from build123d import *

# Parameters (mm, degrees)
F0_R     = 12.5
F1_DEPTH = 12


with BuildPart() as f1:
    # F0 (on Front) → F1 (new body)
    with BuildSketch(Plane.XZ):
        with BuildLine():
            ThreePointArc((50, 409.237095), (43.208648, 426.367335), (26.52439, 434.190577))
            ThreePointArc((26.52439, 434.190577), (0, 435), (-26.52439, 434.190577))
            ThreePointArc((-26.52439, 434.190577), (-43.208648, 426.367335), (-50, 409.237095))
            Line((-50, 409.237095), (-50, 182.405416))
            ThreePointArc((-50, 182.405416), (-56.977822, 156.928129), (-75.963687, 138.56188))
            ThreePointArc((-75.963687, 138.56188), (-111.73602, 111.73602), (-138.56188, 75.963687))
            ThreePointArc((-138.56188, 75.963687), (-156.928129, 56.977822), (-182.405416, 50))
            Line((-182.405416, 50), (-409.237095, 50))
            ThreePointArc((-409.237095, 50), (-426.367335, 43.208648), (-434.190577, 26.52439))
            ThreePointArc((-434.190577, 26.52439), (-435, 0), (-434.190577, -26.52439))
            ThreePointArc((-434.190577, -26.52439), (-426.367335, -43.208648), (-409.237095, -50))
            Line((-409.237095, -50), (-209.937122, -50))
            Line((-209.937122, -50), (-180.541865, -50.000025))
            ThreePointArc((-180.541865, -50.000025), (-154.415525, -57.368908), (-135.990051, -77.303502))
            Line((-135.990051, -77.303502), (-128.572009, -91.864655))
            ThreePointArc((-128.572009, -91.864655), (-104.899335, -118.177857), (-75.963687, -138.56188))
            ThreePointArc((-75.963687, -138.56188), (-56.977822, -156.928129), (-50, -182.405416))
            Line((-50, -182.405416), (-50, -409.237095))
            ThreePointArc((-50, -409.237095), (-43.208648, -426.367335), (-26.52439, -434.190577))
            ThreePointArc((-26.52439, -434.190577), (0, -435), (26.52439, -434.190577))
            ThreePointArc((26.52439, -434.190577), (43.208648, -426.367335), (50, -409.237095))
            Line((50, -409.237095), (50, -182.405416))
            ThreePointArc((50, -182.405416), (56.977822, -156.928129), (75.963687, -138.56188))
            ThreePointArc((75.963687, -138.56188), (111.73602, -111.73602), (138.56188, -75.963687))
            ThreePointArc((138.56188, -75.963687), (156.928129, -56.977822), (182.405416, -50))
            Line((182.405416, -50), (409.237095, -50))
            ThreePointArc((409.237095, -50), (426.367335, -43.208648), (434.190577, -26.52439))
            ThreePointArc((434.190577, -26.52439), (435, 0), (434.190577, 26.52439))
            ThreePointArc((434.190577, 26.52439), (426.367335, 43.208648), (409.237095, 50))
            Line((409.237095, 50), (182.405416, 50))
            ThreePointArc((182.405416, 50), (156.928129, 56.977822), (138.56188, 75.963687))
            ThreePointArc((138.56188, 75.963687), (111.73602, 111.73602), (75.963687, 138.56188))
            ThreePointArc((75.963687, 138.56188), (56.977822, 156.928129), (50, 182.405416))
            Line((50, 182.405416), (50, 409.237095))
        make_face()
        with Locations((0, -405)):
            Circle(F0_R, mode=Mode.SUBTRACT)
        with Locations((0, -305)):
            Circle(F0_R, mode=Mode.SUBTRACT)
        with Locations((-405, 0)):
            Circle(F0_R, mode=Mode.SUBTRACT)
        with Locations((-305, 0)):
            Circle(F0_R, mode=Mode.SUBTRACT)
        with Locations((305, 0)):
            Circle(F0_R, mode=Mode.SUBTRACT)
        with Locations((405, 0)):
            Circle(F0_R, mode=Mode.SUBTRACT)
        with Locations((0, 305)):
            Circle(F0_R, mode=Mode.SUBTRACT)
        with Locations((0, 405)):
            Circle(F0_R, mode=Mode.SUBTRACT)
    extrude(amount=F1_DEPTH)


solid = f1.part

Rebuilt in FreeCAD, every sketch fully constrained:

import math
import FreeCAD as App
import Part
import Sketcher
Q = App.Units.Quantity

doc = App.newDocument("Part")
body = doc.addObject("PartDesign::Body", "Body")

# Sketch on XZ plane
sketch1 = body.newObject("Sketcher::SketchObject", "Sketch")
sketch1.AttachmentSupport = (doc.getObject("XZ_Plane"), [""])
sketch1.MapMode = "FlatFace"
sketch1.addGeometry(Part.ArcOfCircle(Part.Circle(App.Vector(25, 409, 0), App.Vector(0, 0, 1), 25), math.radians(0), math.radians(87)), False)
sketch1.addGeometry(Part.ArcOfCircle(Part.Circle(App.Vector(0, 0, 0), App.Vector(0, 0, 1), 435), math.radians(86.5), math.radians(93.5)), False)
sketch1.addGeometry(Part.ArcOfCircle(Part.Circle(App.Vector(-25, 409, 0), App.Vector(0, 0, 1), 25), math.radians(93), math.radians(180)), False)
sketch1.addGeometry(Part.LineSegment(App.Vector(-50, 409, 0), App.Vector(-50, 182, 0)), False)
sketch1.addGeometry(Part.ArcOfCircle(Part.Circle(App.Vector(-100, 182, 0), App.Vector(0, 0, 1), 50), math.radians(-61), math.radians(0)), False)
sketch1.addGeometry(Part.ArcOfCircle(Part.Circle(App.Vector(0, 0, 0), App.Vector(0, 0, 1), 158), math.radians(119), math.radians(151)), False)
sketch1.addGeometry(Part.ArcOfCircle(Part.Circle(App.Vector(-182, 100, 0), App.Vector(0, 0, 1), 50), math.radians(-90), math.radians(-29)), False)
sketch1.addGeometry(Part.LineSegment(App.Vector(-182, 50, 0), App.Vector(-409, 50, 0)), False)
sketch1.addGeometry(Part.ArcOfCircle(Part.Circle(App.Vector(-409, 25, 0), App.Vector(0, 0, 1), 25), math.radians(90), math.radians(177)), False)
sketch1.addGeometry(Part.ArcOfCircle(Part.Circle(App.Vector(0, 0, 0), App.Vector(0, 0, 1), 435), math.radians(176.5), math.radians(183.5)), False)
sketch1.addGeometry(Part.ArcOfCircle(Part.Circle(App.Vector(-409, -25, 0), App.Vector(0, 0, 1), 25), math.radians(-177), math.radians(-90)), False)
sketch1.addGeometry(Part.LineSegment(App.Vector(-409, -50, 0), App.Vector(-210, -50, 0)), False)
sketch1.addGeometry(Part.LineSegment(App.Vector(-210, -50, 0), App.Vector(-181, -50, 0)), False)
sketch1.addGeometry(Part.ArcOfCircle(Part.Circle(App.Vector(-181, -100, 0), App.Vector(0, 0, 1), 50), math.radians(27), math.radians(90)), False)
sketch1.addGeometry(Part.LineSegment(App.Vector(-136, -77, 0), App.Vector(-129, -92, 0)), False)
sketch1.addGeometry(Part.ArcOfCircle(Part.Circle(App.Vector(0, 0, 0), App.Vector(0, 0, 1), 158), math.radians(-144), math.radians(-119)), False)
sketch1.addGeometry(Part.ArcOfCircle(Part.Circle(App.Vector(-100, -182, 0), App.Vector(0, 0, 1), 50), math.radians(0), math.radians(61)), False)
sketch1.addGeometry(Part.LineSegment(App.Vector(-50, -182, 0), App.Vector(-50, -409, 0)), False)
sketch1.addGeometry(Part.ArcOfCircle(Part.Circle(App.Vector(-25, -409, 0), App.Vector(0, 0, 1), 25), math.radians(-180), math.radians(-93)), False)
sketch1.addGeometry(Part.ArcOfCircle(Part.Circle(App.Vector(0, 0, 0), App.Vector(0, 0, 1), 435), math.radians(-93.5), math.radians(-86.5)), False)
sketch1.addGeometry(Part.ArcOfCircle(Part.Circle(App.Vector(25, -409, 0), App.Vector(0, 0, 1), 25), math.radians(-87), math.radians(0)), False)
sketch1.addGeometry(Part.LineSegment(App.Vector(50, -409, 0), App.Vector(50, -182, 0)), False)
sketch1.addGeometry(Part.ArcOfCircle(Part.Circle(App.Vector(100, -182, 0), App.Vector(0, 0, 1), 50), math.radians(119), math.radians(180)), False)
sketch1.addGeometry(Part.ArcOfCircle(Part.Circle(App.Vector(0, 0, 0), App.Vector(0, 0, 1), 158), math.radians(-61), math.radians(-29)), False)
sketch1.addGeometry(Part.ArcOfCircle(Part.Circle(App.Vector(182, -100, 0), App.Vector(0, 0, 1), 50), math.radians(90), math.radians(151)), False)
sketch1.addGeometry(Part.LineSegment(App.Vector(182, -50, 0), App.Vector(409, -50, 0)), False)
sketch1.addGeometry(Part.ArcOfCircle(Part.Circle(App.Vector(409, -25, 0), App.Vector(0, 0, 1), 25), math.radians(-90), math.radians(-3)), False)
sketch1.addGeometry(Part.ArcOfCircle(Part.Circle(App.Vector(0, 0, 0), App.Vector(0, 0, 1), 435), math.radians(-3.5), math.radians(3.5)), False)
sketch1.addGeometry(Part.ArcOfCircle(Part.Circle(App.Vector(409, 25, 0), App.Vector(0, 0, 1), 25), math.radians(3), math.radians(90)), False)
sketch1.addGeometry(Part.LineSegment(App.Vector(409, 50, 0), App.Vector(182, 50, 0)), False)
sketch1.addGeometry(Part.ArcOfCircle(Part.Circle(App.Vector(182, 100, 0), App.Vector(0, 0, 1), 50), math.radians(-151), math.radians(-90)), False)
sketch1.addGeometry(Part.ArcOfCircle(Part.Circle(App.Vector(0, 0, 0), App.Vector(0, 0, 1), 158), math.radians(29), math.radians(61)), False)
sketch1.addGeometry(Part.ArcOfCircle(Part.Circle(App.Vector(100, 182, 0), App.Vector(0, 0, 1), 50), math.radians(-180), math.radians(-119)), False)
sketch1.addGeometry(Part.LineSegment(App.Vector(50, 182, 0), App.Vector(50, 409, 0)), False)
sketch1.addGeometry(Part.Circle(App.Vector(0, -405, 0), App.Vector(0, 0, 1), 12), False)
sketch1.addGeometry(Part.Circle(App.Vector(0, -305, 0), App.Vector(0, 0, 1), 12), False)
sketch1.addGeometry(Part.Circle(App.Vector(-405, 0, 0), App.Vector(0, 0, 1), 12), False)
sketch1.addGeometry(Part.Circle(App.Vector(-305, 0, 0), App.Vector(0, 0, 1), 12), False)
sketch1.addGeometry(Part.Circle(App.Vector(305, 0, 0), App.Vector(0, 0, 1), 12), False)
sketch1.addGeometry(Part.Circle(App.Vector(405, 0, 0), App.Vector(0, 0, 1), 12), False)
sketch1.addGeometry(Part.Circle(App.Vector(0, 305, 0), App.Vector(0, 0, 1), 12), False)
sketch1.addGeometry(Part.Circle(App.Vector(0, 405, 0), App.Vector(0, 0, 1), 12), False)
sketch1.addConstraint(Sketcher.Constraint("Tangent", 0, 2, 1, 1))
sketch1.addConstraint(Sketcher.Constraint("Tangent", 1, 2, 2, 1))
sketch1.addConstraint(Sketcher.Constraint("Tangent", 2, 2, 3, 1))
sketch1.addConstraint(Sketcher.Constraint("Tangent", 3, 2, 4, 2))
sketch1.addConstraint(Sketcher.Constraint("Tangent", 4, 1, 5, 1))
sketch1.addConstraint(Sketcher.Constraint("Tangent", 5, 2, 6, 2))
sketch1.addConstraint(Sketcher.Constraint("Tangent", 6, 1, 7, 1))
sketch1.addConstraint(Sketcher.Constraint("Tangent", 7, 2, 8, 1))
sketch1.addConstraint(Sketcher.Constraint("Tangent", 8, 2, 9, 1))
sketch1.addConstraint(Sketcher.Constraint("Tangent", 9, 2, 10, 1))
sketch1.addConstraint(Sketcher.Constraint("Tangent", 10, 2, 11, 1))
sketch1.addConstraint(Sketcher.Constraint("Coincident", 11, 2, 12, 1))
sketch1.addConstraint(Sketcher.Constraint("Tangent", 12, 2, 13, 2))
sketch1.addConstraint(Sketcher.Constraint("Tangent", 13, 1, 14, 1))
sketch1.addConstraint(Sketcher.Constraint("Coincident", 14, 2, 15, 1))
sketch1.addConstraint(Sketcher.Constraint("Tangent", 15, 2, 16, 2))
sketch1.addConstraint(Sketcher.Constraint("Tangent", 16, 1, 17, 1))
sketch1.addConstraint(Sketcher.Constraint("Tangent", 17, 2, 18, 1))
sketch1.addConstraint(Sketcher.Constraint("Tangent", 18, 2, 19, 1))
sketch1.addConstraint(Sketcher.Constraint("Tangent", 19, 2, 20, 1))
sketch1.addConstraint(Sketcher.Constraint("Tangent", 20, 2, 21, 1))
sketch1.addConstraint(Sketcher.Constraint("Tangent", 21, 2, 22, 2))
sketch1.addConstraint(Sketcher.Constraint("Tangent", 22, 1, 23, 1))
sketch1.addConstraint(Sketcher.Constraint("Tangent", 23, 2, 24, 2))
sketch1.addConstraint(Sketcher.Constraint("Tangent", 24, 1, 25, 1))
sketch1.addConstraint(Sketcher.Constraint("Tangent", 25, 2, 26, 1))
sketch1.addConstraint(Sketcher.Constraint("Tangent", 26, 2, 27, 1))
sketch1.addConstraint(Sketcher.Constraint("Tangent", 27, 2, 28, 1))
sketch1.addConstraint(Sketcher.Constraint("Tangent", 28, 2, 29, 1))
sketch1.addConstraint(Sketcher.Constraint("Tangent", 29, 2, 30, 2))
sketch1.addConstraint(Sketcher.Constraint("Tangent", 30, 1, 31, 1))
sketch1.addConstraint(Sketcher.Constraint("Tangent", 31, 2, 32, 2))
sketch1.addConstraint(Sketcher.Constraint("Tangent", 32, 1, 33, 1))
sketch1.addConstraint(Sketcher.Constraint("Tangent", 33, 2, 0, 1))
sketch1.addConstraint(Sketcher.Constraint("Vertical", 3))
sketch1.addConstraint(Sketcher.Constraint("Horizontal", 7))
sketch1.addConstraint(Sketcher.Constraint("Horizontal", 11))
sketch1.addConstraint(Sketcher.Constraint("Vertical", 17))
sketch1.addConstraint(Sketcher.Constraint("Vertical", 21))
sketch1.addConstraint(Sketcher.Constraint("Horizontal", 25))
sketch1.addConstraint(Sketcher.Constraint("Horizontal", 29))
sketch1.addConstraint(Sketcher.Constraint("Vertical", 33))
sketch1.addConstraint(Sketcher.Constraint("Coincident", 5, 3, -1, 1))
sketch1.addConstraint(Sketcher.Constraint("Coincident", 15, 3, -1, 1))
sketch1.addConstraint(Sketcher.Constraint("Coincident", 23, 3, -1, 1))
sketch1.addConstraint(Sketcher.Constraint("Coincident", 31, 3, -1, 1))
sketch1.addConstraint(Sketcher.Constraint("Equal", 0, 2))
sketch1.addConstraint(Sketcher.Constraint("Equal", 4, 6))
sketch1.addConstraint(Sketcher.Constraint("Equal", 2, 8))
sketch1.addConstraint(Sketcher.Constraint("Equal", 1, 9))
sketch1.addConstraint(Sketcher.Constraint("Equal", 8, 10))
sketch1.addConstraint(Sketcher.Constraint("Equal", 6, 13))
sketch1.addConstraint(Sketcher.Constraint("Equal", 13, 16))
sketch1.addConstraint(Sketcher.Constraint("Equal", 10, 18))
sketch1.addConstraint(Sketcher.Constraint("Equal", 9, 19))
sketch1.addConstraint(Sketcher.Constraint("Equal", 18, 20))
sketch1.addConstraint(Sketcher.Constraint("Equal", 16, 22))
sketch1.addConstraint(Sketcher.Constraint("Equal", 5, 23))
sketch1.addConstraint(Sketcher.Constraint("Equal", 22, 24))
sketch1.addConstraint(Sketcher.Constraint("Equal", 20, 26))
sketch1.addConstraint(Sketcher.Constraint("Equal", 19, 27))
sketch1.addConstraint(Sketcher.Constraint("Equal", 26, 28))
sketch1.addConstraint(Sketcher.Constraint("Equal", 24, 30))
sketch1.addConstraint(Sketcher.Constraint("Equal", 23, 31))
sketch1.addConstraint(Sketcher.Constraint("Equal", 30, 32))
sketch1.addConstraint(Sketcher.Constraint("Equal", 34, 35))
sketch1.addConstraint(Sketcher.Constraint("Equal", 35, 36))
sketch1.addConstraint(Sketcher.Constraint("Equal", 36, 37))
sketch1.addConstraint(Sketcher.Constraint("Equal", 37, 38))
sketch1.addConstraint(Sketcher.Constraint("Equal", 38, 39))
sketch1.addConstraint(Sketcher.Constraint("Equal", 39, 40))
sketch1.addConstraint(Sketcher.Constraint("Equal", 40, 41))
sketch1.addConstraint(Sketcher.Constraint("Symmetric", 0, 3, 18, 3, -1, 1))
sketch1.addConstraint(Sketcher.Constraint("Symmetric", 2, 3, 20, 3, -1, 1))
sketch1.addConstraint(Sketcher.Constraint("Symmetric", 8, 3, 26, 3, -1, 1))
sketch1.addConstraint(Sketcher.Constraint("Symmetric", 10, 3, 28, 3, -1, 1))
sketch1.addConstraint(Sketcher.Constraint("Symmetric", 37, 3, 38, 3, -1, 1))
sketch1.addConstraint(Sketcher.Constraint("Symmetric", 36, 3, 39, 3, -1, 1))
sketch1.addConstraint(Sketcher.Constraint("Symmetric", 35, 3, 40, 3, -1, 1))
sketch1.addConstraint(Sketcher.Constraint("Symmetric", 34, 3, 41, 3, -1, 1))
sketch1.addConstraint(Sketcher.Constraint("Symmetric", 0, 3, 2, 3, -2))
sketch1.addConstraint(Sketcher.Constraint("Symmetric", 10, 3, 26, 3, -2))
sketch1.addConstraint(Sketcher.Constraint("PointOnObject", 34, 3, -2))
sketch1.addConstraint(Sketcher.Constraint("PointOnObject", 35, 3, -2))
sketch1.addConstraint(Sketcher.Constraint("PointOnObject", 36, 3, -1))
sketch1.addConstraint(Sketcher.Constraint("PointOnObject", 37, 3, -1))
sketch1.addConstraint(Sketcher.Constraint("Horizontal", 16, 3, 22, 3))
sketch1.addConstraint(Sketcher.Constraint("Equal", 29, 3))
sketch1.addConstraint(Sketcher.Constraint("Diameter", 34, Q("25 mm")))
sketch1.addConstraint(Sketcher.Constraint("Radius", 0, Q("25.000002 mm")))
sketch1.addConstraint(Sketcher.Constraint("DistanceX", -1, 1, 0, 3, Q("24.999998 mm")))
sketch1.addConstraint(Sketcher.Constraint("DistanceY", -1, 1, 8, 3, Q("24.999998 mm")))
sketch1.addConstraint(Sketcher.Constraint("DistanceY", 34, 3, -1, 1, Q("405 mm")))
sketch1.addConstraint(Sketcher.Constraint("DistanceY", 35, 3, -1, 1, Q("305 mm")))
sketch1.addConstraint(Sketcher.Constraint("DistanceX", 36, 3, -1, 1, Q("405 mm")))
sketch1.addConstraint(Sketcher.Constraint("DistanceX", 37, 3, -1, 1, Q("305 mm")))
sketch1.addConstraint(Sketcher.Constraint("Radius", 1, Q("435.00026 mm")))
sketch1.addConstraint(Sketcher.Constraint("Radius", 15, Q("158.018591 mm")))
sketch1.addConstraint(Sketcher.Constraint("Radius", 4, Q("50.000003 mm")))
sketch1.addConstraint(Sketcher.Constraint("DistanceX", 7, 2, 7, 1, Q("226.831679 mm")))
sketch1.addConstraint(Sketcher.Constraint("DistanceY", 13, 1, -1, 1, Q("77.303502 mm")))
sketch1.addConstraint(Sketcher.Constraint("DistanceX", 11, 1, 11, 2, Q("199.299973 mm")))
sketch1.addConstraint(Sketcher.Constraint("DistanceX", 13, 3, -1, 1, Q("180.541908 mm")))
sketch1.addConstraint(Sketcher.Constraint("DistanceX", 13, 1, -1, 1, Q("135.990051 mm")))
pad1 = body.newObject("PartDesign::Pad", "Pad")
pad1.Profile = sketch1
pad1.Length = 12

doc.recompute()
